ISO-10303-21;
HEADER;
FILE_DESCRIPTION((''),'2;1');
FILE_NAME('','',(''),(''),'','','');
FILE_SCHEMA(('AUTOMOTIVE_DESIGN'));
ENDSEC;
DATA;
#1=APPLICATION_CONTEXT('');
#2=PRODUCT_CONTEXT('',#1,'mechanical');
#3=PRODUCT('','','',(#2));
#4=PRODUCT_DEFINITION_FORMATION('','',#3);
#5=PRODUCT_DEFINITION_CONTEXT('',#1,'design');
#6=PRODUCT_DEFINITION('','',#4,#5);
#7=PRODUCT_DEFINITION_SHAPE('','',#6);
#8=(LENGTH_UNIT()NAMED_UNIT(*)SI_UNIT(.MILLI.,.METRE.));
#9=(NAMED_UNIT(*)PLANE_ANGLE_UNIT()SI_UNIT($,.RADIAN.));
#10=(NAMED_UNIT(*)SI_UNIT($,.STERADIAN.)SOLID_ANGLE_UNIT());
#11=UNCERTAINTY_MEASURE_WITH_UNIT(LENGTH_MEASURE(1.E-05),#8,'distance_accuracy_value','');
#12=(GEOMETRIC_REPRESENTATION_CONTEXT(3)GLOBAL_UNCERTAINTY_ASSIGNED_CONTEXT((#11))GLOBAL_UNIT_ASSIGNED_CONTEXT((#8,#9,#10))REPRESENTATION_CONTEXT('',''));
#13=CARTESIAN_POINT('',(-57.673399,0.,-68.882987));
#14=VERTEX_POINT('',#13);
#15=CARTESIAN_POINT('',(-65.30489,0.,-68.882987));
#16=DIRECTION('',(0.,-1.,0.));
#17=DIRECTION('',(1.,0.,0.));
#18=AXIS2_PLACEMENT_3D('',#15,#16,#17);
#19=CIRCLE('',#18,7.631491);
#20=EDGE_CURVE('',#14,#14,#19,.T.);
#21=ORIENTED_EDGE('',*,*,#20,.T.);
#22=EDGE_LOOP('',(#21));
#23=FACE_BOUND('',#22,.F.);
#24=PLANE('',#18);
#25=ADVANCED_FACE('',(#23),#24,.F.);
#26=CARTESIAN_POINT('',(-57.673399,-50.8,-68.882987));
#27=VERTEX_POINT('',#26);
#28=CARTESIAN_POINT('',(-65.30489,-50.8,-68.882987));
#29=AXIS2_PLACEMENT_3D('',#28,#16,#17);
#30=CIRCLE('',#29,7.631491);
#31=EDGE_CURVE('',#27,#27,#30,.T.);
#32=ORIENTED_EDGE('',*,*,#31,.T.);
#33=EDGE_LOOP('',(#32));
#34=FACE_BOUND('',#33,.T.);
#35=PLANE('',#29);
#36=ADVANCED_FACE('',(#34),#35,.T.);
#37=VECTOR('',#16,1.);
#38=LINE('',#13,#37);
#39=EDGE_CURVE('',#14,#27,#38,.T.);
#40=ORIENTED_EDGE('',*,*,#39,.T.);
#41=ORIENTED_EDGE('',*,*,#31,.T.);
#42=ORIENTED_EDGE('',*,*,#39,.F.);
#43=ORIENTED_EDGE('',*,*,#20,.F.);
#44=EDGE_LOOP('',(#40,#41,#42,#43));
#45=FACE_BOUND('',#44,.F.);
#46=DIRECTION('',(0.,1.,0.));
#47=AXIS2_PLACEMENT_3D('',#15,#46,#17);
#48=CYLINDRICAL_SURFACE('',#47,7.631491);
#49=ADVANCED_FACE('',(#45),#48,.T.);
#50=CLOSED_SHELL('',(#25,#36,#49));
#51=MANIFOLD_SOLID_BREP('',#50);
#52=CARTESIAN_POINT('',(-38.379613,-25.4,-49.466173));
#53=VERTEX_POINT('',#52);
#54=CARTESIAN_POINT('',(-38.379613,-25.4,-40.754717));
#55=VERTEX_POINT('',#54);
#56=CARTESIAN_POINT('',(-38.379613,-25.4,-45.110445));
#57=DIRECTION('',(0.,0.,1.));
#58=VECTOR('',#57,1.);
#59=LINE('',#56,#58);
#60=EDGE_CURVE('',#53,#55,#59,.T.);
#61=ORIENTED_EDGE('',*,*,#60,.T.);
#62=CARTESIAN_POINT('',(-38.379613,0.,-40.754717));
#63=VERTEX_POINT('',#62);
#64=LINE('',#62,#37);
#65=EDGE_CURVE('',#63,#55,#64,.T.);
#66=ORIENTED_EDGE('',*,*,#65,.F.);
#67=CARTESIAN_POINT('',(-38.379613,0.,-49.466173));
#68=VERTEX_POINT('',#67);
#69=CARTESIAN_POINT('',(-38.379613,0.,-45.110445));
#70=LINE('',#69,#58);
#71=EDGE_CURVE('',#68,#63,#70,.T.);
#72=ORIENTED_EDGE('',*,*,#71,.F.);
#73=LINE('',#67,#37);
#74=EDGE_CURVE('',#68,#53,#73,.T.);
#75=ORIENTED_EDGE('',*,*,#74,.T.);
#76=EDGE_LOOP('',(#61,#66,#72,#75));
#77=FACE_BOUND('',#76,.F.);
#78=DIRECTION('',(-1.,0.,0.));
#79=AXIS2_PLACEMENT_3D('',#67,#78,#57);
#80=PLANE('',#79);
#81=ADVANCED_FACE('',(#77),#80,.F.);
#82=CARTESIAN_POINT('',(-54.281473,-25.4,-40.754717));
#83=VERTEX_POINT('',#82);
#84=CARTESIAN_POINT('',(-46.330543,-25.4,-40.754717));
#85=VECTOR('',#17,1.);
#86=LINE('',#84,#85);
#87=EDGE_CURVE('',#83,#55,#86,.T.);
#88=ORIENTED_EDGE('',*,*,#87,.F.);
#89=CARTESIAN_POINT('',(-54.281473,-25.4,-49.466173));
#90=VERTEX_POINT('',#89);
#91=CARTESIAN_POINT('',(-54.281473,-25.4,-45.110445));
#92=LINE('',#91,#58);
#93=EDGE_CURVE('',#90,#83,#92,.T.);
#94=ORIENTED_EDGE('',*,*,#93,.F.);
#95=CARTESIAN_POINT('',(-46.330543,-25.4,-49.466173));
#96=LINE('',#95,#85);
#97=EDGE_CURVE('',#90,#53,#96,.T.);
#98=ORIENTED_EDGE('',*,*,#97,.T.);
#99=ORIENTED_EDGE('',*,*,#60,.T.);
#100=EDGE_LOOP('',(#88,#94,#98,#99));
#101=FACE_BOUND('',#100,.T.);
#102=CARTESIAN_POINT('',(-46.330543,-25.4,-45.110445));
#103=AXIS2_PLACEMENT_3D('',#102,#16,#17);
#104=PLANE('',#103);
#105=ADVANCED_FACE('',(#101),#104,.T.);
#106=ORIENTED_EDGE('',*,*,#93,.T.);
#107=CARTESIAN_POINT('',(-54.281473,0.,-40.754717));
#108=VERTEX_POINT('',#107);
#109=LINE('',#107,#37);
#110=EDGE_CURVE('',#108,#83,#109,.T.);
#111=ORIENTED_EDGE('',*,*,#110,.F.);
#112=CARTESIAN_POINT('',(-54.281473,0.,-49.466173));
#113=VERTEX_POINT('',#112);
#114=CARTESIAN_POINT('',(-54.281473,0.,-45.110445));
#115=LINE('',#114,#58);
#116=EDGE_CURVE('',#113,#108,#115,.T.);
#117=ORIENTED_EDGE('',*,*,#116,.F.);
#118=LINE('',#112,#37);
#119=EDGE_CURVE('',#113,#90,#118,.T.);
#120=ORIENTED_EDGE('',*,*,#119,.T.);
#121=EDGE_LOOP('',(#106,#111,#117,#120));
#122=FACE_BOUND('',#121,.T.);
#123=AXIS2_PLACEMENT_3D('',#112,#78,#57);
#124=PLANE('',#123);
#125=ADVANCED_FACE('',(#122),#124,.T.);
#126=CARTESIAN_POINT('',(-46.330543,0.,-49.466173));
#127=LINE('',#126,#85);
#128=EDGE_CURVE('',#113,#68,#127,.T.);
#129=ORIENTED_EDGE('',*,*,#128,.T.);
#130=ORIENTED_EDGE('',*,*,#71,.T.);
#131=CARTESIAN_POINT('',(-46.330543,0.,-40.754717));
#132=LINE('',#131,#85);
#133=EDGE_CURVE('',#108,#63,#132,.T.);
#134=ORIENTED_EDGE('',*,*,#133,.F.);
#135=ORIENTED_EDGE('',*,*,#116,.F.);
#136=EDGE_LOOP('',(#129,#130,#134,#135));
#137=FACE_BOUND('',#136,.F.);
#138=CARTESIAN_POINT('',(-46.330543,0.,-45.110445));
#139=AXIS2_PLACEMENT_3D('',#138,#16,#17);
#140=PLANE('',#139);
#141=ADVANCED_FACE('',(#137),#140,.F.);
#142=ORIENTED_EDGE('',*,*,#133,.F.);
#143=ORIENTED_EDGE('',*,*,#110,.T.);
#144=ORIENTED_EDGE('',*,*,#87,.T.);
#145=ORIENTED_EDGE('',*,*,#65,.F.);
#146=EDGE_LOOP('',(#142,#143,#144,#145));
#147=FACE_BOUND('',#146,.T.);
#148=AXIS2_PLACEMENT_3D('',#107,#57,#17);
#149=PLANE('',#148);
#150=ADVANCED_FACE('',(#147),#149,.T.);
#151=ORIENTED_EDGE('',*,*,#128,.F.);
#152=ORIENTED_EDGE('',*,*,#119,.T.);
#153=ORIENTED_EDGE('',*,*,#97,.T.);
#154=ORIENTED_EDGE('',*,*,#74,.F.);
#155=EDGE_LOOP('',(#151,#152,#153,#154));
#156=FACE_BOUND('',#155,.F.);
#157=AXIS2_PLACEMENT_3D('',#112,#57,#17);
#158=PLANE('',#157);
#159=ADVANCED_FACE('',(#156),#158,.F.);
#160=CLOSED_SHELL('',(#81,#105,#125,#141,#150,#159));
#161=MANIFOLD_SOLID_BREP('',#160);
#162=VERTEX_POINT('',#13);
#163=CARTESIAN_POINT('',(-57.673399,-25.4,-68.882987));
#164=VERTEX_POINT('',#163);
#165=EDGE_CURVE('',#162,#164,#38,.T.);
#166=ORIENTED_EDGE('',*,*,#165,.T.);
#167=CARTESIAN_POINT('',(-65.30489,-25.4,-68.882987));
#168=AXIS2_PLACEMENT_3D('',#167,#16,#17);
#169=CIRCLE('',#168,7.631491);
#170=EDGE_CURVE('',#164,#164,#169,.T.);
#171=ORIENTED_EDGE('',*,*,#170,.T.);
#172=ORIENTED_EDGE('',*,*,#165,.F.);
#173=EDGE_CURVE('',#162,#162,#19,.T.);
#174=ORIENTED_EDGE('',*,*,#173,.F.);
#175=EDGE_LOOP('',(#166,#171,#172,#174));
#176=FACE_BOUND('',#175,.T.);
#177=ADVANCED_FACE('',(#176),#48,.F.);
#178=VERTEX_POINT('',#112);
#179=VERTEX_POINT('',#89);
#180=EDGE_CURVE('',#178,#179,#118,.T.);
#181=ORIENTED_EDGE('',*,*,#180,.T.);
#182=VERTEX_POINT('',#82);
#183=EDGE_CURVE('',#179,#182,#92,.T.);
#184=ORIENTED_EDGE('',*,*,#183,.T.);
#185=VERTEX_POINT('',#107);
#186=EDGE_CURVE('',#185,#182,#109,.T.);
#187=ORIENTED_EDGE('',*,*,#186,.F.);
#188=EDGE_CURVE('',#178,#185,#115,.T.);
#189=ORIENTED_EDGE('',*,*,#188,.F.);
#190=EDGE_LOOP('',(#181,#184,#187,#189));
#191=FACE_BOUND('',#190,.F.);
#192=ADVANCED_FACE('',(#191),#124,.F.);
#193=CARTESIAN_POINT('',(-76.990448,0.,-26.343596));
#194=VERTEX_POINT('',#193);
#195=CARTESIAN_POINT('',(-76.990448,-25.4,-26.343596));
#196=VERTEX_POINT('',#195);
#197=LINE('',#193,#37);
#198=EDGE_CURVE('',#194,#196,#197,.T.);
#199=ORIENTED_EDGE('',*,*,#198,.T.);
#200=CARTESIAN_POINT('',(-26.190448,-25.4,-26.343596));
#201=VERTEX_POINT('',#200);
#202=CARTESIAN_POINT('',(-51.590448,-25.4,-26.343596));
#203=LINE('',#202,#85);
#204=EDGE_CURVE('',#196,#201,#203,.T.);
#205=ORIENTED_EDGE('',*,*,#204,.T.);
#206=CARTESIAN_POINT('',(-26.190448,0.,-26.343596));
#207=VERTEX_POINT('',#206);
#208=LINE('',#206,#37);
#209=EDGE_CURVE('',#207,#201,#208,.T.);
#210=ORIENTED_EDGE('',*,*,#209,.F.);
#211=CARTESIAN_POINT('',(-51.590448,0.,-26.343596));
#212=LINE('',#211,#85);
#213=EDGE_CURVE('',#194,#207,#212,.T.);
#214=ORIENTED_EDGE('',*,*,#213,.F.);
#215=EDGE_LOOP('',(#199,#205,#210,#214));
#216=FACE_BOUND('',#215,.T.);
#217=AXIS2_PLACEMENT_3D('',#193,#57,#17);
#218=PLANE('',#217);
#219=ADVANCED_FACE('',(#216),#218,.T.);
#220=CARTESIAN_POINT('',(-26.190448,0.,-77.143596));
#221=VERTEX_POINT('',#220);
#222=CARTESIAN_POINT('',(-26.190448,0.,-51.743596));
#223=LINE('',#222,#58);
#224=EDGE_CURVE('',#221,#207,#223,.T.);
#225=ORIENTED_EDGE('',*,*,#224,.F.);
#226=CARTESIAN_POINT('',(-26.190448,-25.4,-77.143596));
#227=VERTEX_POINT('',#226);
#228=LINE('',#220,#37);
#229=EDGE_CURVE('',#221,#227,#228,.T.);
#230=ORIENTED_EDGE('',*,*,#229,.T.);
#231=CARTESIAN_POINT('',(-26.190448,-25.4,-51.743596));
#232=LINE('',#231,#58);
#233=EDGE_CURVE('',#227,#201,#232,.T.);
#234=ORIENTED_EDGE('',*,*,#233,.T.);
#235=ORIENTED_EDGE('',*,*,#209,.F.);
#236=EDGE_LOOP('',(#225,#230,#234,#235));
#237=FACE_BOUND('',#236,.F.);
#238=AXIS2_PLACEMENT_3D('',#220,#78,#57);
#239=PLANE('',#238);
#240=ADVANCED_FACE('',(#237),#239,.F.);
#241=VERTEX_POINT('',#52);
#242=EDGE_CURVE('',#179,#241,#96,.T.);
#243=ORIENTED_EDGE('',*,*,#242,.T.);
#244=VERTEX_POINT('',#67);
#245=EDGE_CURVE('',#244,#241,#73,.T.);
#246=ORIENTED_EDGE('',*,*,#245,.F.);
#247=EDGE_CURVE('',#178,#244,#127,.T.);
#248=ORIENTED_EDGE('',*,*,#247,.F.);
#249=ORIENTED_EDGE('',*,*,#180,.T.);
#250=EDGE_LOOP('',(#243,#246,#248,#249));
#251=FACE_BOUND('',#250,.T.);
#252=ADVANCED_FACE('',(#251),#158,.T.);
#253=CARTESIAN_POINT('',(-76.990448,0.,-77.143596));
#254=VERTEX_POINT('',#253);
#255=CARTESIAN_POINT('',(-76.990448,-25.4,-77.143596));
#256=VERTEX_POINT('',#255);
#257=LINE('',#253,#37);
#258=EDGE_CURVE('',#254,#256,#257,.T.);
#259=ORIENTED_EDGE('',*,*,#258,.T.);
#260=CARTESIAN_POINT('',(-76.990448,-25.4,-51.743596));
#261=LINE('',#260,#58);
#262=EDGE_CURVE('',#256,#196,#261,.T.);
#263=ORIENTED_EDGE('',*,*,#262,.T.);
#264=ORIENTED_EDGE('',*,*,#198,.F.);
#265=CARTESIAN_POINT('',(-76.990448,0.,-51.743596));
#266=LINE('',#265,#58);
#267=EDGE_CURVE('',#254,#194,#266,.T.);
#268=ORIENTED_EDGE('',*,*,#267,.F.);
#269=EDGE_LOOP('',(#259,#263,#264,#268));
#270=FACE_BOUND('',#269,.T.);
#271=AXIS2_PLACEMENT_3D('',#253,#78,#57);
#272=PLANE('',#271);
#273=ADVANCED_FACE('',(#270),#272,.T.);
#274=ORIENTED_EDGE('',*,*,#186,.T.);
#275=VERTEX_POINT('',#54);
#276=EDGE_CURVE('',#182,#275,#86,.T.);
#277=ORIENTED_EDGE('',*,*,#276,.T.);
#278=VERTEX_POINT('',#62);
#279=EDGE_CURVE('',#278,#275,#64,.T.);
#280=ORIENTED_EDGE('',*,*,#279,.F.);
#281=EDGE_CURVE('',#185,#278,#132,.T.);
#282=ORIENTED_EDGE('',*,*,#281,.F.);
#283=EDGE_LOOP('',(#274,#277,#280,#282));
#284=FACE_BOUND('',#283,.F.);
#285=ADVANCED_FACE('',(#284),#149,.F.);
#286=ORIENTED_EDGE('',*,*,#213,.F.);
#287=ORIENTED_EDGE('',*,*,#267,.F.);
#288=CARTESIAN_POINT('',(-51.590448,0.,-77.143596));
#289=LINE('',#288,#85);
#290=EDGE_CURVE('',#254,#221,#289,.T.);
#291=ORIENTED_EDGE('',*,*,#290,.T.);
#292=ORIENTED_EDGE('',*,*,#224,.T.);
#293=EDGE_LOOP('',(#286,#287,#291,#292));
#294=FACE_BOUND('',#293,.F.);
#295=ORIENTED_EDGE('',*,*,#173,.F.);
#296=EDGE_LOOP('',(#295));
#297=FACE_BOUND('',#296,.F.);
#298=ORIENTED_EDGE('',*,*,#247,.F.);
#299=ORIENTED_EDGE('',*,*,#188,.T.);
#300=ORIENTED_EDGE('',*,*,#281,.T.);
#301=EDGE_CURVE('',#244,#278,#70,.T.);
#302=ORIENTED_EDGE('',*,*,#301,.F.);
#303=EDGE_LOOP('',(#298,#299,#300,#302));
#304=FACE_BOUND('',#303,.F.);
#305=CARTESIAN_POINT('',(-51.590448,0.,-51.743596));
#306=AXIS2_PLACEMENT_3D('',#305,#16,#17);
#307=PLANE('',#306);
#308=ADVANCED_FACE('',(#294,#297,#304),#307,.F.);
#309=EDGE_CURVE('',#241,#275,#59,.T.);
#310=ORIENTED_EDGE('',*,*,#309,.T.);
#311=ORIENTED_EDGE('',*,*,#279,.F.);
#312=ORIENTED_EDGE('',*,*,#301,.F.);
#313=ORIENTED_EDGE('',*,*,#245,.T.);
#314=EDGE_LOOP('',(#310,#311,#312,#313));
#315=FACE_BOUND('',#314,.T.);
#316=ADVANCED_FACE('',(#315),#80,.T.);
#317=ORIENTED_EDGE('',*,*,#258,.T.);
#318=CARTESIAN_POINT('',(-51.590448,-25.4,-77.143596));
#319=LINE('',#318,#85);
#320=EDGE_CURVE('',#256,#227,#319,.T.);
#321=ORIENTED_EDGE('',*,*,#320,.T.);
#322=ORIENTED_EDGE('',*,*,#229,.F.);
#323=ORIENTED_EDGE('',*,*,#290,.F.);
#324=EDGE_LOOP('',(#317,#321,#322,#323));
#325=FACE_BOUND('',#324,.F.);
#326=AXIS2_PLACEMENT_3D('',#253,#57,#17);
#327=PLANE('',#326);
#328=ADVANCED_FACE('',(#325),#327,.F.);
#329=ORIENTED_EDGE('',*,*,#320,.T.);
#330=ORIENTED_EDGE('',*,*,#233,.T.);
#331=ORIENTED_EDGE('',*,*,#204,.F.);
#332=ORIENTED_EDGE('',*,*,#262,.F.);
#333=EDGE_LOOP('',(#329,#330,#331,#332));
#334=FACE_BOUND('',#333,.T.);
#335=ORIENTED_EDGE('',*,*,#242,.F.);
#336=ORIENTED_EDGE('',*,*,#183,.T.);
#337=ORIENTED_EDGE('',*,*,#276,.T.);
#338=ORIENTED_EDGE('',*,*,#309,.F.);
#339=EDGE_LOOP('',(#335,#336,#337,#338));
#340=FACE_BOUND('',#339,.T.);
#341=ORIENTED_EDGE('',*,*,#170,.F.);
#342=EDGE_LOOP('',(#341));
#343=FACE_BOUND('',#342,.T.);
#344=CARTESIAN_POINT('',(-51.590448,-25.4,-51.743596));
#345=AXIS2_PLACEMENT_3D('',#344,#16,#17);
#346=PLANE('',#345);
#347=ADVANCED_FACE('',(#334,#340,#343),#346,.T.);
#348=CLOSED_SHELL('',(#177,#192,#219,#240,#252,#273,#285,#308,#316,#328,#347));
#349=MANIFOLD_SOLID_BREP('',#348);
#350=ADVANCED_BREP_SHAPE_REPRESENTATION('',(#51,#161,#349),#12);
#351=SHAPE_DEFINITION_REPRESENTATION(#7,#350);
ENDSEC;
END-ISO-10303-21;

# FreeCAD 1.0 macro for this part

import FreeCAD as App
import Part
import Sketcher
Q = App.Units.Quantity


def add_polygon(sketch, points):
    """Adds a closed chain of lines whose ends are joined by coincident constraints."""
    first, n = sketch.GeometryCount, len(points)
    for a, b in zip(points, points[1:] + points[:1]):
        sketch.addGeometry(Part.LineSegment(App.Vector(*a, 0), App.Vector(*b, 0)), False)
    for i in range(n):
        sketch.addConstraint(Sketcher.Constraint("Coincident", first + i, 2, first + (i + 1) % n, 1))

doc = App.newDocument("Part")
body = doc.addObject("PartDesign::Body", "Body")

# Sketch on XZ plane
sketch1 = body.newObject("Sketcher::SketchObject", "Sketch")
sketch1.AttachmentSupport = (doc.getObject("XZ_Plane"), [""])
sketch1.MapMode = "FlatFace"
add_polygon(sketch1, [(-54, -41), (-54, -49), (-38, -49), (-38, -41)])  # lines 0-3
sketch1.addConstraint(Sketcher.Constraint("Vertical", 0))
sketch1.addConstraint(Sketcher.Constraint("Horizontal", 1))
sketch1.addConstraint(Sketcher.Constraint("Vertical", 2))
sketch1.addConstraint(Sketcher.Constraint("Horizontal", 3))
sketch1.addConstraint(Sketcher.Constraint("DistanceX", 1, 1, 1, 2, Q("15.90186 mm")))
sketch1.addConstraint(Sketcher.Constraint("DistanceY", 0, 2, 0, 1, Q("8.711457 mm")))
sketch1.addConstraint(Sketcher.Constraint("DistanceX", 0, 2, -1, 1, Q("54.281473 mm")))
sketch1.addConstraint(Sketcher.Constraint("DistanceY", 0, 2, -1, 1, Q("49.466173 mm")))
pad1 = body.newObject("PartDesign::Pad", "Pad")
pad1.Profile = sketch1
pad1.Length = Q("1 in")
body2 = doc.addObject("PartDesign::Body", "Body001")

# Sketch on XZ plane
sketch2 = body2.newObject("Sketcher::SketchObject", "Sketch001")
sketch2.AttachmentSupport = (doc.getObject("XZ_Plane001"), [""])
sketch2.MapMode = "FlatFace"
sketch2.addGeometry(Part.Circle(App.Vector(-65, -69, 0), App.Vector(0, 0, 1), 8), False)
sketch2.addConstraint(Sketcher.Constraint("Diameter", 0, Q("15.262982 mm")))
sketch2.addConstraint(Sketcher.Constraint("DistanceX", 0, 3, -1, 1, Q("65.30489 mm")))
sketch2.addConstraint(Sketcher.Constraint("DistanceY", 0, 3, -1, 1, Q("68.882987 mm")))
pad2 = body2.newObject("PartDesign::Pad", "Pad001")
pad2.Profile = sketch2
pad2.Length = Q("2 in")
body3 = doc.addObject("PartDesign::Body", "Body002")

# Sketch on XZ plane
sketch3 = body3.newObject("Sketcher::SketchObject", "Sketch002")
sketch3.AttachmentSupport = (doc.getObject("XZ_Plane002"), [""])
sketch3.MapMode = "FlatFace"
add_polygon(sketch3, [(-77, -26), (-77, -77), (-26, -77), (-26, -26)])  # lines 0-3
sketch3.addGeometry(Part.Circle(App.Vector(-65, -69, 0), App.Vector(0, 0, 1), 8), False)  # 4
add_polygon(sketch3, [(-38, -49), (-54, -49), (-54, -41), (-38, -41)])  # lines 5-8
sketch3.addConstraint(Sketcher.Constraint("Vertical", 0))
sketch3.addConstraint(Sketcher.Constraint("Horizontal", 1))
sketch3.addConstraint(Sketcher.Constraint("Vertical", 2))
sketch3.addConstraint(Sketcher.Constraint("Horizontal", 3))
sketch3.addConstraint(Sketcher.Constraint("Horizontal", 5))
sketch3.addConstraint(Sketcher.Constraint("Vertical", 6))
sketch3.addConstraint(Sketcher.Constraint("Horizontal", 7))
sketch3.addConstraint(Sketcher.Constraint("Vertical", 8))
sketch3.addConstraint(Sketcher.Constraint("Equal", 3, 0))
sketch3.addConstraint(Sketcher.Constraint("DistanceX", 1, 1, 1, 2, Q("2 in")))
sketch3.addConstraint(Sketcher.Constraint("Diameter", 4, Q("15.262982 mm")))
sketch3.addConstraint(Sketcher.Constraint("DistanceX", 5, 2, 5, 1, Q("15.90186 mm")))
sketch3.addConstraint(Sketcher.Constraint("DistanceY", 6, 1, 6, 2, Q("8.711457 mm")))
sketch3.addConstraint(Sketcher.Constraint("DistanceX", 4, 3, -1, 1, Q("65.30489 mm")))
sketch3.addConstraint(Sketcher.Constraint("DistanceX", 0, 2, -1, 1, Q("76.990448 mm")))
sketch3.addConstraint(Sketcher.Constraint("DistanceY", 0, 2, 4, 3, Q("8.260609 mm")))
sketch3.addConstraint(Sketcher.Constraint("DistanceY", 6, 2, 3, 2, Q("14.41112 mm")))
sketch3.addConstraint(Sketcher.Constraint("DistanceY", 4, 3, -1, 1, Q("68.882987 mm")))
sketch3.addConstraint(Sketcher.Constraint("DistanceX", 5, 2, -1, 1, Q("54.281473 mm")))
pad3 = body3.newObject("PartDesign::Pad", "Pad002")
pad3.Profile = sketch3
pad3.Length = Q("1 in")

doc.recompute()
